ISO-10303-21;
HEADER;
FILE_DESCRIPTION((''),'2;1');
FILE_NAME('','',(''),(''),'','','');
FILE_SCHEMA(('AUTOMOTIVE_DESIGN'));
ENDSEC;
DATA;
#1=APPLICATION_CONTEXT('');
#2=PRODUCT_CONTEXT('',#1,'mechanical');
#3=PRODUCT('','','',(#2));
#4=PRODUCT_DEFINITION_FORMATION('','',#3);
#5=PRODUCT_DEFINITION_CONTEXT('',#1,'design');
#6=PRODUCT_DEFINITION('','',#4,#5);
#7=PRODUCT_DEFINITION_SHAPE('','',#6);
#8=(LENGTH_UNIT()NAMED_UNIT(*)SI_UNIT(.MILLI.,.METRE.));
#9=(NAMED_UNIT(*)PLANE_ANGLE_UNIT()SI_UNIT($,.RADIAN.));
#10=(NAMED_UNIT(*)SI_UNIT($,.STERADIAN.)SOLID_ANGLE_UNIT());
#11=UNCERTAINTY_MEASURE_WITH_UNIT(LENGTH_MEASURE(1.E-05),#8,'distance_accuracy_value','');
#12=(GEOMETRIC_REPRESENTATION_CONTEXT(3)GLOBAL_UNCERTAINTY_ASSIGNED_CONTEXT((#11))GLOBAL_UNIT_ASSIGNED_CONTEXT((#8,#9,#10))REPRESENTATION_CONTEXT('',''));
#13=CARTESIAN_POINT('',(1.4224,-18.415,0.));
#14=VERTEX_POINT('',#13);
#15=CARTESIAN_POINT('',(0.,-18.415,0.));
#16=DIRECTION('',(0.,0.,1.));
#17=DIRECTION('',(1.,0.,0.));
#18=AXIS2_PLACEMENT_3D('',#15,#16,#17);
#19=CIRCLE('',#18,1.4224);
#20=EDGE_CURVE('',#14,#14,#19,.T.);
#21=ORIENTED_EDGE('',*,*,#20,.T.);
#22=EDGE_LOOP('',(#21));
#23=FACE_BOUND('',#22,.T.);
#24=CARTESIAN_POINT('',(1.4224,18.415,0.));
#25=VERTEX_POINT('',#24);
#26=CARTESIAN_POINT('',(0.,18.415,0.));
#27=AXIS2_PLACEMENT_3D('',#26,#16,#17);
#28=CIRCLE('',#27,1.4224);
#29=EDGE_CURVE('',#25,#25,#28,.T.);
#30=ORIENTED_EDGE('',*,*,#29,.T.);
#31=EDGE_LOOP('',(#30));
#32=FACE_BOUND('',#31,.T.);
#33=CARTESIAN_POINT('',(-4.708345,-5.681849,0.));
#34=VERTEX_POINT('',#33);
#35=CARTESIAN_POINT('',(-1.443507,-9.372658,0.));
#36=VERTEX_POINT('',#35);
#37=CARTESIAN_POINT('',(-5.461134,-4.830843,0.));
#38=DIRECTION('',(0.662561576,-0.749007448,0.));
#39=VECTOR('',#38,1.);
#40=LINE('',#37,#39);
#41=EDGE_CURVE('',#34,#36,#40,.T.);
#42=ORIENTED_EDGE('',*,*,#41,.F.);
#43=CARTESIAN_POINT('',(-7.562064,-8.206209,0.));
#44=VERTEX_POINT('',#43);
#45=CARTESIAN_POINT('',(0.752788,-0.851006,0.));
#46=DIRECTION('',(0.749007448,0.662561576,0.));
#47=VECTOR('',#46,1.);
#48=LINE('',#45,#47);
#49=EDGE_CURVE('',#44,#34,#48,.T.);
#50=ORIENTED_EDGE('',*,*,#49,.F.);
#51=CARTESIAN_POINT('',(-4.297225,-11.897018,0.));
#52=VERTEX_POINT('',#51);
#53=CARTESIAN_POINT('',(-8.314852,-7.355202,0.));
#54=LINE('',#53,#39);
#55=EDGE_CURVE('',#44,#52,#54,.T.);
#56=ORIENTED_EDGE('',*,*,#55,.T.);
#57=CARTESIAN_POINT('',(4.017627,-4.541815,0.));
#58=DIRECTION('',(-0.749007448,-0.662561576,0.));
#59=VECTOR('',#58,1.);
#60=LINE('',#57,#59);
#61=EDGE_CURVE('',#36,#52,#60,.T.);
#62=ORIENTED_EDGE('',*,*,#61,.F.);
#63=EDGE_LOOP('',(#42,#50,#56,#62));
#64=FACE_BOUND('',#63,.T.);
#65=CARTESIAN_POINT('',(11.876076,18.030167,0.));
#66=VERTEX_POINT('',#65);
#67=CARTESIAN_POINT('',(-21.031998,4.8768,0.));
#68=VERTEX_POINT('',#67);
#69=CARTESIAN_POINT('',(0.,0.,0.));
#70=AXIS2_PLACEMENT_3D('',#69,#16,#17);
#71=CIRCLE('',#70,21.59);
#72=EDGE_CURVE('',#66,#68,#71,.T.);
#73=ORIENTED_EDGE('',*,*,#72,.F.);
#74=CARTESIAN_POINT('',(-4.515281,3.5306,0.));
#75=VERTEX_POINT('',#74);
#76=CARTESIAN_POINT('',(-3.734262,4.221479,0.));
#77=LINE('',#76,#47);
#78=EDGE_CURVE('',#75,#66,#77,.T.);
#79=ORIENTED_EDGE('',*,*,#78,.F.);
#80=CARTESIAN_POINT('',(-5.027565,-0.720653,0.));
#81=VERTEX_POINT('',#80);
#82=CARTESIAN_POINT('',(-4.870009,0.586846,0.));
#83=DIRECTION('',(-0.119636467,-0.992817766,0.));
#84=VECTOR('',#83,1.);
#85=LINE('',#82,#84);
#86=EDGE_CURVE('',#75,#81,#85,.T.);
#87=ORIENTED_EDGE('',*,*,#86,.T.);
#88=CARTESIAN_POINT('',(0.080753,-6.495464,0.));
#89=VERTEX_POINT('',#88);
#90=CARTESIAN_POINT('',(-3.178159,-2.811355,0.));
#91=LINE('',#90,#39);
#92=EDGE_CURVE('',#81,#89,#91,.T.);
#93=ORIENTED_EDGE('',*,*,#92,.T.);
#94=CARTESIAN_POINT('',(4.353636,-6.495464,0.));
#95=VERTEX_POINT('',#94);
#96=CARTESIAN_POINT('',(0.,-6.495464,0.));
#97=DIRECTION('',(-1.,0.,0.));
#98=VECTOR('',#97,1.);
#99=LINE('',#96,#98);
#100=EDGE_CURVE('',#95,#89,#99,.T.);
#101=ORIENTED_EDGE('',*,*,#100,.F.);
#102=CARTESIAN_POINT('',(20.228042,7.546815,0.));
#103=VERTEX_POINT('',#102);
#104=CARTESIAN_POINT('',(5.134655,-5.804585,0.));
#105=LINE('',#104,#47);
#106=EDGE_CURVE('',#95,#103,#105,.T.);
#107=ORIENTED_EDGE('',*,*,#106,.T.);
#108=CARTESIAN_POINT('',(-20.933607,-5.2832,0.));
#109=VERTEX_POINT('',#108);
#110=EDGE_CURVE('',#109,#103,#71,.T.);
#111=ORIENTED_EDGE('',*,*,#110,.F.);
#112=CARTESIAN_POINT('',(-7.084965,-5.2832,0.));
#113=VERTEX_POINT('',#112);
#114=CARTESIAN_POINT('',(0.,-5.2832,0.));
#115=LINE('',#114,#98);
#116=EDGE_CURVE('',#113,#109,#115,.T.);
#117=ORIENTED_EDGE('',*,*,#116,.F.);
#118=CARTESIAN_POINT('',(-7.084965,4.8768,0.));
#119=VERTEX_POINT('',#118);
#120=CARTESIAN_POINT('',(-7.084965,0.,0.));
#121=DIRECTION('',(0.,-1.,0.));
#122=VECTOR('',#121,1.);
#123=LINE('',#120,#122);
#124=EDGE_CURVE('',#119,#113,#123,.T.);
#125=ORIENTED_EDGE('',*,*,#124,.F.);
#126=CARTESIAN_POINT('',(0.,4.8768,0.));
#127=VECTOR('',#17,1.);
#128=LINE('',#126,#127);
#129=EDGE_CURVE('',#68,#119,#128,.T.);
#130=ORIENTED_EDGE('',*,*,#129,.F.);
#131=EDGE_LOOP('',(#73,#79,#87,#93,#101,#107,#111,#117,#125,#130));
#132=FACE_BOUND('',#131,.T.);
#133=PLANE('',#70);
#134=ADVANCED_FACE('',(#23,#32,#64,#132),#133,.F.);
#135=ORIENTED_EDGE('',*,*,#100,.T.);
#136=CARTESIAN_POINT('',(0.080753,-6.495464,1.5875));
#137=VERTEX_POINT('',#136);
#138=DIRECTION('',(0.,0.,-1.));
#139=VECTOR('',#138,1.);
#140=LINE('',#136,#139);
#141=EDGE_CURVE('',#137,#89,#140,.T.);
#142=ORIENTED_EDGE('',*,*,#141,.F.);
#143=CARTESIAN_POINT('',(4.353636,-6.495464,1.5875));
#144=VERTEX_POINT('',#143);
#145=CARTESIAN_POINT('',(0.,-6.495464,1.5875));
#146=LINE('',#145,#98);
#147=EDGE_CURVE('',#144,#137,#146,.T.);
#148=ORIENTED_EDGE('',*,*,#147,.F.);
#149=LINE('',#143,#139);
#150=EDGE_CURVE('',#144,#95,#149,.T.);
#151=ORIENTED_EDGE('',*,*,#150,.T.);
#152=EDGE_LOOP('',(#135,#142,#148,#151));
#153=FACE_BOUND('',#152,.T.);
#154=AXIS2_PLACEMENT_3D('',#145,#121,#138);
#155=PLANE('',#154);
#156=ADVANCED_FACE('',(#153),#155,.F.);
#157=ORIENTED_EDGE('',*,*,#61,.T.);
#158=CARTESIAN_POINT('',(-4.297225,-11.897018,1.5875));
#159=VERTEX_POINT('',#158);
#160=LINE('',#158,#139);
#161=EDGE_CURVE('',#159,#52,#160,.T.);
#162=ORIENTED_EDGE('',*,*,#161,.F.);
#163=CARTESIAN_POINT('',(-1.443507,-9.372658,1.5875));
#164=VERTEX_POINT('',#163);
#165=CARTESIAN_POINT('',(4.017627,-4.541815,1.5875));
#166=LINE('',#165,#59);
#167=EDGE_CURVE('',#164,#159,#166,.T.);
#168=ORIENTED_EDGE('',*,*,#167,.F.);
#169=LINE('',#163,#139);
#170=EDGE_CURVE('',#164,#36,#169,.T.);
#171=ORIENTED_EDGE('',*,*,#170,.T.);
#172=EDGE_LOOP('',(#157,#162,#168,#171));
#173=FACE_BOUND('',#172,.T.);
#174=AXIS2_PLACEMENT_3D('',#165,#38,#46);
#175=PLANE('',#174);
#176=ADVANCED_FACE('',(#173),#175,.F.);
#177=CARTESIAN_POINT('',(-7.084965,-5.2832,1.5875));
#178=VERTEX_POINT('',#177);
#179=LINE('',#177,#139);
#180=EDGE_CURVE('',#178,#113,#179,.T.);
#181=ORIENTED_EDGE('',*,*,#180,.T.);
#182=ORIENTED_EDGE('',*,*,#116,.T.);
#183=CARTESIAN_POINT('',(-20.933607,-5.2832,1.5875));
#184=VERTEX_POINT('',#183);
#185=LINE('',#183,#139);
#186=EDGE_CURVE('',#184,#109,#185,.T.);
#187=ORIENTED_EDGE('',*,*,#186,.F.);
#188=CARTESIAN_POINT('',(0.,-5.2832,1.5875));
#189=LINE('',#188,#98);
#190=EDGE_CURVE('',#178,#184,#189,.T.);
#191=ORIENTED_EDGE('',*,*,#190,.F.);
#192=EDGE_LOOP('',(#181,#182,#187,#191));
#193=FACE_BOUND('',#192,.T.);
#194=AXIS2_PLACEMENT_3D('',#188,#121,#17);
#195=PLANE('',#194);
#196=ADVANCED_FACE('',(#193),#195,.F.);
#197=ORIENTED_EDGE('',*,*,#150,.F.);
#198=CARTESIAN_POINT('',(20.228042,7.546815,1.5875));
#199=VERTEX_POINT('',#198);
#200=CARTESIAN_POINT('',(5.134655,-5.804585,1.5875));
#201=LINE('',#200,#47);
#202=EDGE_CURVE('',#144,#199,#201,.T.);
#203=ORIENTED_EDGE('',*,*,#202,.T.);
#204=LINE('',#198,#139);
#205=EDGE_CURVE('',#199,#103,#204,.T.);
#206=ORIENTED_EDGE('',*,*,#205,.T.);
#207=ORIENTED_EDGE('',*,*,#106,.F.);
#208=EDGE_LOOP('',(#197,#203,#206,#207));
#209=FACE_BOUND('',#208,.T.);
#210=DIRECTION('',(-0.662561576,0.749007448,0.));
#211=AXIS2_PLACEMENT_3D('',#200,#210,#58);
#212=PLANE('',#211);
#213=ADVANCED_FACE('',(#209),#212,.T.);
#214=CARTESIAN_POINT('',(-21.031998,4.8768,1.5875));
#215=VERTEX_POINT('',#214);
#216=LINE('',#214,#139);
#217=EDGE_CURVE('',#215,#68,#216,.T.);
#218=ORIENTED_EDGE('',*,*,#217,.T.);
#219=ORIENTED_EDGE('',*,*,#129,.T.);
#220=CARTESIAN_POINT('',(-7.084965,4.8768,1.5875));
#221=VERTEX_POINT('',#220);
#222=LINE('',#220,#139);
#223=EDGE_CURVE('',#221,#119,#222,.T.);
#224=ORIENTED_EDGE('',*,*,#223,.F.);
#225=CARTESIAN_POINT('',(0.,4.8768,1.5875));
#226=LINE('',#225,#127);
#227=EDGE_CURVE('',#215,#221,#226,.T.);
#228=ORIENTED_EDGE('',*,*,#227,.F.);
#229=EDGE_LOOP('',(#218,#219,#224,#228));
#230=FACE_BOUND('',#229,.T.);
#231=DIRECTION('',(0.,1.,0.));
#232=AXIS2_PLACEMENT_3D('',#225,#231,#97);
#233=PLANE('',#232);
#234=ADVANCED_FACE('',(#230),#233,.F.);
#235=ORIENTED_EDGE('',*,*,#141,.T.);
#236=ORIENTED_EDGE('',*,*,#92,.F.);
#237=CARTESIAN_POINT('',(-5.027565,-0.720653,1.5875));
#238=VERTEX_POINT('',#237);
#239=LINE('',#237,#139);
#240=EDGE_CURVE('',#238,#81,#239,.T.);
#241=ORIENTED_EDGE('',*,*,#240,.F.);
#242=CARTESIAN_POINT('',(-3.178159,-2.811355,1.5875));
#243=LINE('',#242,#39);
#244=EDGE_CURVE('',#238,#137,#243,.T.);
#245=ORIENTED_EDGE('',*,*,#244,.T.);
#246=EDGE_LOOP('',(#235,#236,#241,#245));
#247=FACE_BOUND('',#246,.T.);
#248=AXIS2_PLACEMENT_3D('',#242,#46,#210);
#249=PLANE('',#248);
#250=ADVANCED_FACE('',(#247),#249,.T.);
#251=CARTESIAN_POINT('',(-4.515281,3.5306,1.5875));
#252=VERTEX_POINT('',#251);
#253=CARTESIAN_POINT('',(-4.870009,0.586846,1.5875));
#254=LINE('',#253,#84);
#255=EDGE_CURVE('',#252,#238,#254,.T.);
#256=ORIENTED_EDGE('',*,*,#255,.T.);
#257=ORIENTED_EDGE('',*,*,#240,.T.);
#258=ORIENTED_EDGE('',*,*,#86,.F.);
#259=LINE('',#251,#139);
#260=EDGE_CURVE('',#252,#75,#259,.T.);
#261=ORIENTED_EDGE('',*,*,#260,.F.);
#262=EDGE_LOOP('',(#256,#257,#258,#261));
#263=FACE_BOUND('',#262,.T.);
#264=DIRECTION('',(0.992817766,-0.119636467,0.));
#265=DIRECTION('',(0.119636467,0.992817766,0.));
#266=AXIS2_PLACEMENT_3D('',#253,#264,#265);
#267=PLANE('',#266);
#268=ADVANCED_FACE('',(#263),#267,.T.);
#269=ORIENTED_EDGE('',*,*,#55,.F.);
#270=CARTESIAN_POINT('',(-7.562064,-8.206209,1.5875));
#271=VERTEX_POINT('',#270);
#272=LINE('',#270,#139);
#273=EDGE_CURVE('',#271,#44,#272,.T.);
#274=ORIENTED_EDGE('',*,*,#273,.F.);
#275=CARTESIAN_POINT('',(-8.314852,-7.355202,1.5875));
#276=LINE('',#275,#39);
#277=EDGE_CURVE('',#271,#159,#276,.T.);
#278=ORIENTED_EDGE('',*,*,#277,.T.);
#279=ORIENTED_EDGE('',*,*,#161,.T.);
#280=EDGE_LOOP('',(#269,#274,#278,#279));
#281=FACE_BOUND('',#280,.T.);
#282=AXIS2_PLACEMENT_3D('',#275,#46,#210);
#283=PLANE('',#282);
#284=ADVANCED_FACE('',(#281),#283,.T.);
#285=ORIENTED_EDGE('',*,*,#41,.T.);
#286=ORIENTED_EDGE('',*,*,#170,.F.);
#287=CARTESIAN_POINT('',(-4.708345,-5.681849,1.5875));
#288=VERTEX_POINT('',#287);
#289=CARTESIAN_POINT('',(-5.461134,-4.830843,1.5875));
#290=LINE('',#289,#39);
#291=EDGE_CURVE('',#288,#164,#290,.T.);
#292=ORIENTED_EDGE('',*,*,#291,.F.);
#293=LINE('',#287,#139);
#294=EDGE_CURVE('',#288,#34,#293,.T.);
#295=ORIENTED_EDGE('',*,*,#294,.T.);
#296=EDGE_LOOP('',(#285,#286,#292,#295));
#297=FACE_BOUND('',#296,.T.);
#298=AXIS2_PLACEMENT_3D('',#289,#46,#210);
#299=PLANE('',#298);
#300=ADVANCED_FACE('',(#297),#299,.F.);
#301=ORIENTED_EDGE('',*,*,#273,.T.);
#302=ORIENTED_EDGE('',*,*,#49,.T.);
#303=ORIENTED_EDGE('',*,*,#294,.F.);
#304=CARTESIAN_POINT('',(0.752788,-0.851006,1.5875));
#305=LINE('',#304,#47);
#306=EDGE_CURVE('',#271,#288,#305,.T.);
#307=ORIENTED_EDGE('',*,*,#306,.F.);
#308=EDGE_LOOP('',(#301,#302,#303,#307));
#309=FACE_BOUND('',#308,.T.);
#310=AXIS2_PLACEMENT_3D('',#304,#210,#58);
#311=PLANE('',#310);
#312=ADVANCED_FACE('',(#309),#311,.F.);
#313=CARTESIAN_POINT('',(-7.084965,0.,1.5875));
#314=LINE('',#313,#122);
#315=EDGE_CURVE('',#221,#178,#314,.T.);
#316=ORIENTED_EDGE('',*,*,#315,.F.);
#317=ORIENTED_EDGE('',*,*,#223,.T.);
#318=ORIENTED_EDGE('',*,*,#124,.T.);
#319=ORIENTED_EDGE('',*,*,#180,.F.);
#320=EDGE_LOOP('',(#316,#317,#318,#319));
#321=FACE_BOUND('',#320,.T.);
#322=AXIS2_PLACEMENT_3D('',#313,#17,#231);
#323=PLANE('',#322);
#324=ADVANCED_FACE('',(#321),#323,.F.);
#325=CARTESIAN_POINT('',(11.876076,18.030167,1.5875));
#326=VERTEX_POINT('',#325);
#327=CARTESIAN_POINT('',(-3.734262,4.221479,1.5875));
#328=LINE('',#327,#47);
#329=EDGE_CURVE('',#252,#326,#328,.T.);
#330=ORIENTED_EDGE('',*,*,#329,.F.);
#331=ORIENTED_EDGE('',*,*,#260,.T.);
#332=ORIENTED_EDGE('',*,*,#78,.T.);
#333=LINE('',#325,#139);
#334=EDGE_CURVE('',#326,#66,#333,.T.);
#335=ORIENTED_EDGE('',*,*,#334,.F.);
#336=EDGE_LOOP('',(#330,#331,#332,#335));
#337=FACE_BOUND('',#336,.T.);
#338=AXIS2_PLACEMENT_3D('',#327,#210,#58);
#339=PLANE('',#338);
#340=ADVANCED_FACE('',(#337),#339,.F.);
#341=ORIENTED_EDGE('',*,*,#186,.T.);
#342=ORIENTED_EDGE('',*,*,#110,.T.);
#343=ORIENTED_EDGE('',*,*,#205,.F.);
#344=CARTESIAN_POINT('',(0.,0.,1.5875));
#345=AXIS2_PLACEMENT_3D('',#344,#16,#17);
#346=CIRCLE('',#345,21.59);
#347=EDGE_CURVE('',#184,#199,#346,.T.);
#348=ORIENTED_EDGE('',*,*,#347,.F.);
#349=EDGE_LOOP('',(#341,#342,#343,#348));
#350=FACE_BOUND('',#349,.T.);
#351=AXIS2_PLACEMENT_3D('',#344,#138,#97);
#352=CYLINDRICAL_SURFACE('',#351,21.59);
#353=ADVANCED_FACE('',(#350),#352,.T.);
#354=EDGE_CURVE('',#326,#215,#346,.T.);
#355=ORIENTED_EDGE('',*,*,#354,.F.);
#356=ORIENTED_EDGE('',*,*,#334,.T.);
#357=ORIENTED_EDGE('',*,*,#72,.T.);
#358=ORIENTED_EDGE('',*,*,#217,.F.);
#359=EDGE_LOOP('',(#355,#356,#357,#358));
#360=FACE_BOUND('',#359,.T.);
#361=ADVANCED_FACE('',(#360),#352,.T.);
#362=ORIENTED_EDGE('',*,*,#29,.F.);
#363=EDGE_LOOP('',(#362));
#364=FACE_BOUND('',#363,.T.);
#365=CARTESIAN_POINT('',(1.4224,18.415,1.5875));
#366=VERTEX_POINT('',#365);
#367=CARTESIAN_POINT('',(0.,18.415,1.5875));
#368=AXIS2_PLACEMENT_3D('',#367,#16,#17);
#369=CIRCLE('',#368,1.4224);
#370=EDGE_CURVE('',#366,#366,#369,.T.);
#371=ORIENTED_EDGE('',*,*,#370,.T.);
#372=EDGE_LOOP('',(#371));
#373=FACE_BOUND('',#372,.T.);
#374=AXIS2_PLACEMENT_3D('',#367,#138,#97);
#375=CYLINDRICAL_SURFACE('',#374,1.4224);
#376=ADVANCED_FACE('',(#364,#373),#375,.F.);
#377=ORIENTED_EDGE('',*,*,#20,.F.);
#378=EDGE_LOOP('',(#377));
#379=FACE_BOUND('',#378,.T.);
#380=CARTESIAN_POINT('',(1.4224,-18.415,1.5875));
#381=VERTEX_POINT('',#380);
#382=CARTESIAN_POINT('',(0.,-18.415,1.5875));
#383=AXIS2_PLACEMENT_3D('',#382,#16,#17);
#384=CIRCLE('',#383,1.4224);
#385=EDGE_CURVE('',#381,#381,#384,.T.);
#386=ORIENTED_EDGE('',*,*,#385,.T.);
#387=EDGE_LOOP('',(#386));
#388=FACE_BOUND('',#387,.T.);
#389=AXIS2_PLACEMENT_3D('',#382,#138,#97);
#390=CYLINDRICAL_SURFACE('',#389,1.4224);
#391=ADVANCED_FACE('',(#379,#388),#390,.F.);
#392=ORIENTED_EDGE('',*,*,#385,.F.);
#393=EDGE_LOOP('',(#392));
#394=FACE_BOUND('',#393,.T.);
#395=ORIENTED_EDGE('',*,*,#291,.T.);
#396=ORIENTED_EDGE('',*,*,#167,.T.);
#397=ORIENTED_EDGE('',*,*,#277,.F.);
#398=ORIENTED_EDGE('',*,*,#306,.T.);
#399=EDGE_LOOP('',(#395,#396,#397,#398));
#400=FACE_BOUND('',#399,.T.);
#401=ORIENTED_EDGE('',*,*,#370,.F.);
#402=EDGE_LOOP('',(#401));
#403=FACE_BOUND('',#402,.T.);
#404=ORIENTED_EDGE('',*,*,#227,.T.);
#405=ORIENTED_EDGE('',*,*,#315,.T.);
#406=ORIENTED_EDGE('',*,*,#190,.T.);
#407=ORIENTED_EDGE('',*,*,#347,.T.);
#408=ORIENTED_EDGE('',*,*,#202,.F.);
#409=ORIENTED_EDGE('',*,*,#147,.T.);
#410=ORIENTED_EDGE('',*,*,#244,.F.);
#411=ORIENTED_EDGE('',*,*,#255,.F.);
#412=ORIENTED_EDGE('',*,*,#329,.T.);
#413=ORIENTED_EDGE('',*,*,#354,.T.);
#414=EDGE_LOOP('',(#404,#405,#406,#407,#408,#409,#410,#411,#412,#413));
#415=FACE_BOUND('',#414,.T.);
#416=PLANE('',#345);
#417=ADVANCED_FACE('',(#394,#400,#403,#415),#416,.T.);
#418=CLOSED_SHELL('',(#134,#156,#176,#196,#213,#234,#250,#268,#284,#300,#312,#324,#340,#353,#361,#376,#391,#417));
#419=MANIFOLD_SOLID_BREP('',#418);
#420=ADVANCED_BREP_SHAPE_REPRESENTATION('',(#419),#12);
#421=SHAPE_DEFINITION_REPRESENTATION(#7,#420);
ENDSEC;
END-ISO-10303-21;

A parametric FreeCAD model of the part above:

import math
import FreeCAD as App
import Part
import Sketcher

V = App.Vector
Q = App.Units.Quantity


def add_polygon(sketch, points):
    """Adds a closed chain of lines whose ends are joined by coincident constraints."""
    first, n = sketch.GeometryCount, len(points)
    for a, b in zip(points, points[1:] + points[:1]):
        sketch.addGeometry(Part.LineSegment(App.Vector(*a, 0), App.Vector(*b, 0)), False)
    for i in range(n):
        sketch.addConstraint(Sketcher.Constraint("Coincident", first + i, 2, first + (i + 1) % n, 1))

doc = App.newDocument("Part")
body = doc.addObject("PartDesign::Body", "Body")

# Sketch on XY plane
sketch1 = doc.addObject("Sketcher::SketchObject", "Sketch")
body.addObject(sketch1)
sketch1.AttachmentSupport = (doc.XY_Plane, [""])
sketch1.MapMode = "FlatFace"
sketch1.addGeometry(Part.LineSegment(V(-5, -0.7, 0), V(-4.5, 3.5, 0)), False)  # 0
sketch1.addGeometry(Part.LineSegment(V(-4.5, 3.5, 0), V(11.9, 18, 0)), False)  # 1
sketch1.addGeometry(Part.ArcOfCircle(Part.Circle(V(0, 0, 0), V(0, 0, 1), 21.6), math.radians(57), math.radians(167)), False)  # 2
sketch1.addGeometry(Part.LineSegment(V(-21, 4.9, 0), V(-7.1, 4.9, 0)), False)  # 3
sketch1.addGeometry(Part.LineSegment(V(-7.1, 4.9, 0), V(-7.1, -5.3, 0)), False)  # 4
sketch1.addGeometry(Part.LineSegment(V(-7.1, -5.3, 0), V(-20.9, -5.3, 0)), False)  # 5
sketch1.addGeometry(Part.ArcOfCircle(Part.Circle(V(0, 0, 0), V(0, 0, 1), 21.6), math.radians(-166), math.radians(0)), False)  # 6
sketch1.addGeometry(Part.ArcOfCircle(Part.Circle(V(0, 0, 0), V(0, 0, 1), 21.6), math.radians(0), math.radians(20)), False)  # 7
sketch1.addGeometry(Part.LineSegment(V(20.2, 7.5, 0), V(4.4, -6.5, 0)), False)  # 8
sketch1.addGeometry(Part.LineSegment(V(4.4, -6.5, 0), V(0.1, -6.5, 0)), False)  # 9
sketch1.addGeometry(Part.LineSegment(V(0.1, -6.5, 0), V(-5, -0.7, 0)), False)  # 10
add_polygon(sketch1, [(-4.3, -11.9), (-7.6, -8.2), (-4.7, -5.7), (-1.4, -9.4)])  # lines 11-14
sketch1.addGeometry(Part.Circle(V(0, -18.4, 0), V(0, 0, 1), 1.4), False)  # 15
sketch1.addGeometry(Part.Circle(V(0, 18.4, 0), V(0, 0, 1), 1.4), False)  # 16
sketch1.addConstraint([
    Sketcher.Constraint("Coincident", 0, 2, 1, 1),
    Sketcher.Constraint("Coincident", 1, 2, 2, 1),
    Sketcher.Constraint("Coincident", 2, 2, 3, 1),
    Sketcher.Constraint("Coincident", 3, 2, 4, 1),
    Sketcher.Constraint("Coincident", 4, 2, 5, 1),
    Sketcher.Constraint("Coincident", 5, 2, 6, 1),
    Sketcher.Constraint("Tangent", 6, 2, 7, 1),
    Sketcher.Constraint("Coincident", 7, 2, 8, 1),
    Sketcher.Constraint("Coincident", 8, 2, 9, 1),
    Sketcher.Constraint("Coincident", 9, 2, 10, 1),
    Sketcher.Constraint("Coincident", 10, 2, 0, 1),
    Sketcher.Constraint("Horizontal", 3),
    Sketcher.Constraint("Vertical", 4),
    Sketcher.Constraint("Horizontal", 5),
    Sketcher.Constraint("Horizontal", 9),
    Sketcher.Constraint("Coincident", 2, 3, -1, 1),
    Sketcher.Constraint("Coincident", 6, 3, -1, 1),
    Sketcher.Constraint("Equal", 2, 6),
    Sketcher.Constraint("Equal", 6, 7),
    Sketcher.Constraint("Equal", 15, 16),
    Sketcher.Constraint("Symmetric", 15, 3, 16, 3, -1, 1),
    Sketcher.Constraint("PointOnObject", 15, 3, -2),
    Sketcher.Constraint("PointOnObject", 6, 2, -1),
    Sketcher.Constraint("Parallel", 1, 8),
    Sketcher.Constraint("Perpendicular", 8, 10),
    Sketcher.Constraint("Parallel", 10, 11),
    Sketcher.Constraint("Perpendicular", 11, 12),
    Sketcher.Constraint("Perpendicular", 12, 13),
    Sketcher.Constraint("Perpendicular", 13, 14),
    Sketcher.Constraint("Radius", 2, Q("0.85 in")),
    Sketcher.Constraint("Diameter", 15, Q("0.112 in")),
    Sketcher.Constraint("DistanceY", 4, 2, 4, 1, Q("0.4 in")),
    Sketcher.Constraint("Distance", 12, Q("0.15 in")),
    Sketcher.Constraint("DistanceY", 15, 3, 16, 3, Q("1.45 in")),
    Sketcher.Constraint("Distance", 11, Q("0.194 in")),
    Sketcher.Constraint("DistanceY", -1, 1, 0, 2, Q("0.139 in")),
    Sketcher.Constraint("DistanceY", -1, 1, 2, 2, Q("0.192 in")),
    Sketcher.Constraint("DistanceX", 4, 2, 10, 2, Q("0.081 in")),
    Sketcher.Constraint("DistanceX", 5, 2, 5, 1, 13.848642),
    Sketcher.Constraint("DistanceX", 4, 2, 8, 2, 11.438601),
    Sketcher.Constraint("DistanceX", 11, 2, 4, 2, 0.477098),
    Sketcher.Constraint("Distance", 10, 7.709952),
    Sketcher.Constraint("DistanceX", 9, 2, 9, 1, 4.272883),
    Sketcher.Constraint("DistanceX", 0, 2, -1, 1, 4.515281),
    Sketcher.Constraint("DistanceX", -1, 1, 7, 2, 20.228042),
    Sketcher.Constraint("DistanceY", 11, 2, -1, 1, 8.206209),
])
pad1 = doc.addObject("PartDesign::Pad", "Pad")
body.addObject(pad1)
pad1.Profile = sketch1
pad1.Length = Q("0.0625 in")

doc.recompute()
